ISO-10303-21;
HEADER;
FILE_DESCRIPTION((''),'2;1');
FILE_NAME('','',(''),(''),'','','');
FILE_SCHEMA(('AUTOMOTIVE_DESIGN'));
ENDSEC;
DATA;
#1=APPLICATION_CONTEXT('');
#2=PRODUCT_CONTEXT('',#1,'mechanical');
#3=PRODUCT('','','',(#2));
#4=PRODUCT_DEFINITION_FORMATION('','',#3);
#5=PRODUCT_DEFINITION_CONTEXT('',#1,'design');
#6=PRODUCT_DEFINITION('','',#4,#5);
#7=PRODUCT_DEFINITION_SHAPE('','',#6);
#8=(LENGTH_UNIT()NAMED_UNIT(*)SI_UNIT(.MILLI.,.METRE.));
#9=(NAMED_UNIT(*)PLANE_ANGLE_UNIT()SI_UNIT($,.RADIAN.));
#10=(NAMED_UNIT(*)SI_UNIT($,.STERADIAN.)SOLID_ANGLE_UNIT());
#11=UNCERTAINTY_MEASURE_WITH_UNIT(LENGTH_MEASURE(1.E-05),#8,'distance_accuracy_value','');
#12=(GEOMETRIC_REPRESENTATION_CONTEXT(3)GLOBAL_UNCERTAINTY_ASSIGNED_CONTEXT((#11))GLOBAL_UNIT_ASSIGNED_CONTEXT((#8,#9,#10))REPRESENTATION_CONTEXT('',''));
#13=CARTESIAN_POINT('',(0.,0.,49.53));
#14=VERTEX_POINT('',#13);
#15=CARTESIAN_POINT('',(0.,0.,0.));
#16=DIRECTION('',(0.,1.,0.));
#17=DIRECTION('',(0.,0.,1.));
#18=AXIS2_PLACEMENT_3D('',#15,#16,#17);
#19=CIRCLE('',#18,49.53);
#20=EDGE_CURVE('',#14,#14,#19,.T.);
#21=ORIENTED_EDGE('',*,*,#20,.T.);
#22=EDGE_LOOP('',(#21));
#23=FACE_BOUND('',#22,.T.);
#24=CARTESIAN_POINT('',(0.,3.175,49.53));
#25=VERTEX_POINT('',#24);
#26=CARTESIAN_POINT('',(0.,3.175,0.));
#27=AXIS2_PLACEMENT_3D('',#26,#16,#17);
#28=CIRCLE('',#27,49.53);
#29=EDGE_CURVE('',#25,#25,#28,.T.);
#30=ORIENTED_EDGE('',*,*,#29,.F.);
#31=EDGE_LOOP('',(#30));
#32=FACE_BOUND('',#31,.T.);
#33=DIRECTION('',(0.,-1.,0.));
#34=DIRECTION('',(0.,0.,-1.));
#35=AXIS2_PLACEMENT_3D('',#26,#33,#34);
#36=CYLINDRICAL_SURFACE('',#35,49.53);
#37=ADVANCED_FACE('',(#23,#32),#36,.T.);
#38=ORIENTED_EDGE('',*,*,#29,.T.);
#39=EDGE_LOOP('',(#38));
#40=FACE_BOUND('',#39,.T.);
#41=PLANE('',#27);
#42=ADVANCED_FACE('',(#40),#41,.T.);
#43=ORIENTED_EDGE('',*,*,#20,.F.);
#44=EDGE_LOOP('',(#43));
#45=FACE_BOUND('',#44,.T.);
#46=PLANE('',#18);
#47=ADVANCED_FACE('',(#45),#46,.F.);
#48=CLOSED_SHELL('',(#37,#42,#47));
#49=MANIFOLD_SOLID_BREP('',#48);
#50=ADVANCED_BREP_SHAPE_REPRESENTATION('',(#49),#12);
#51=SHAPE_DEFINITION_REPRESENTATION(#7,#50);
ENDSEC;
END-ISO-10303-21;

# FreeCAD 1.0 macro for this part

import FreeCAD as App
import Part
import Sketcher
Q = App.Units.Quantity

doc = App.newDocument("Part")
params = doc.addObject("Spreadsheet::Sheet", "Params")
for row, (alias, value) in enumerate([
    ("sketch1_diameter", "3.9 in"),
    ("pad1_length", "0.125 in"),
], start=1):
    params.set(f"A{row}", alias)
    params.set(f"B{row}", "=" + value)
    params.setAlias(f"B{row}", alias)

body = doc.addObject("PartDesign::Body", "Body")

# Sketch on XZ plane
sketch1 = doc.addObject("Sketcher::SketchObject", "Sketch")
body.addObject(sketch1)
sketch1.AttachmentSupport = (doc.XZ_Plane, [""])
sketch1.MapMode = "FlatFace"
sketch1.addGeometry(Part.Circle(App.Vector(0, 0, 0), App.Vector(0, 0, 1), 50), False)
sketch1.addConstraint(Sketcher.Constraint("Coincident", 0, 3, -1, 1))
sketch1.addConstraint(Sketcher.Constraint("Diameter", 0, Q("3.9 in")))
sketch1.setExpression("Constraints[1]", "Params.sketch1_diameter")
pad1 = doc.addObject("PartDesign::Pad", "Pad")
body.addObject(pad1)
pad1.Profile = sketch1
pad1.setExpression("Length", "Params.pad1_length")
pad1.Reversed = True

doc.recompute()
